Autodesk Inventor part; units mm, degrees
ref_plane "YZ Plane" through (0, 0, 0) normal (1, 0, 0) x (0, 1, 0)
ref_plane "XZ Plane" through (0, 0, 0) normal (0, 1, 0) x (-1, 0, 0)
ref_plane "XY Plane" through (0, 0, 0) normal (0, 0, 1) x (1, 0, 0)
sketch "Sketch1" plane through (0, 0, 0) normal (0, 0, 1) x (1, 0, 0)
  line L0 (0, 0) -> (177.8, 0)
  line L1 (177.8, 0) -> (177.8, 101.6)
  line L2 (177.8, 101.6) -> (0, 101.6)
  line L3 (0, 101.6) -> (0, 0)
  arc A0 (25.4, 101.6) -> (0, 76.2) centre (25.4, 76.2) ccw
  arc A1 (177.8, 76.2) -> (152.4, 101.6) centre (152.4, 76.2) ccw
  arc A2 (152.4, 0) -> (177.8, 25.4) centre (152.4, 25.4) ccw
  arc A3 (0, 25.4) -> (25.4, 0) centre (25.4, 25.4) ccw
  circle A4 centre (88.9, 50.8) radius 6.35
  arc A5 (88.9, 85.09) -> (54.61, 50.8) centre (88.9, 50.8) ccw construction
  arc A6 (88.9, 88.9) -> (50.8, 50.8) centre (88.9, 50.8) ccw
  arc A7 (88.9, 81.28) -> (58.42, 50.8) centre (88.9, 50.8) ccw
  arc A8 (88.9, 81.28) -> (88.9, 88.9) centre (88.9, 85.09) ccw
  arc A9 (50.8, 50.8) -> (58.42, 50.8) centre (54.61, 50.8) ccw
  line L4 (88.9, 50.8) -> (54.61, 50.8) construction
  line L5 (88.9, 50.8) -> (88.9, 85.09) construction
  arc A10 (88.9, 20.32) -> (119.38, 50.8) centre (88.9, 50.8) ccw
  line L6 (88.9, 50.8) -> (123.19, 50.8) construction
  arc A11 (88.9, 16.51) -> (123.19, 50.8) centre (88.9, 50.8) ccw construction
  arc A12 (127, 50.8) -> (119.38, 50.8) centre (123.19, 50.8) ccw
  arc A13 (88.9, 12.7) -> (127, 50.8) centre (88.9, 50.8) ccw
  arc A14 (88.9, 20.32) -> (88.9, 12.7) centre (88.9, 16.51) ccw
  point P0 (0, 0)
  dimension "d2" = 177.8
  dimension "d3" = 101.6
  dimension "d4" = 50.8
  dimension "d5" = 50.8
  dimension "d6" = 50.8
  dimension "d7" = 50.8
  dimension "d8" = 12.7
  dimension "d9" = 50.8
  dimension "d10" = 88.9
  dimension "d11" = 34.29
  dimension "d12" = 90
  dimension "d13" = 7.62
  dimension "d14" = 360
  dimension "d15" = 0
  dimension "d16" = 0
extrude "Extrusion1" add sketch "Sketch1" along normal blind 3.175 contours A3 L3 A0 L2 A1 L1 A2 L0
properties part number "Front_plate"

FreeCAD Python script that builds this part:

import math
import FreeCAD as App
import Part
import Sketcher

V = App.Vector
Q = App.Units.Quantity

doc = App.newDocument("Part")
body = doc.addObject("PartDesign::Body", "Body")

# Sketch on XY plane
sketch1 = doc.addObject("Sketcher::SketchObject", "Sketch")
body.addObject(sketch1)
sketch1.AttachmentSupport = (doc.XY_Plane, [""])
sketch1.MapMode = "FlatFace"
sketch1.addGeometry([
    Part.ArcOfCircle(Part.Circle(V(25.4, 25.4, 0), V(0, 0, 1), 25.4), math.radians(180), math.radians(270)),  # 0
    Part.LineSegment(V(25.4, 0, 0), V(152.4, 0, 0)),  # 1
    Part.ArcOfCircle(Part.Circle(V(152.4, 25.4, 0), V(0, 0, 1), 25.4), math.radians(-90), math.radians(0)),  # 2
    Part.LineSegment(V(177.8, 25.4, 0), V(177.8, 76.2, 0)),  # 3
    Part.ArcOfCircle(Part.Circle(V(152.4, 76.2, 0), V(0, 0, 1), 25.4), math.radians(0), math.radians(90)),  # 4
    Part.LineSegment(V(152.4, 101.6, 0), V(25.4, 101.6, 0)),  # 5
    Part.ArcOfCircle(Part.Circle(V(25.4, 76.2, 0), V(0, 0, 1), 25.4), math.radians(90), math.radians(180)),  # 6
    Part.LineSegment(V(0, 76.2, 0), V(0, 25.4, 0)),  # 7
    Part.ArcOfCircle(Part.Circle(V(88.9, 16.5, 0), V(0, 0, 1), 3.8), math.radians(90), math.radians(270)),  # 8
    Part.ArcOfCircle(Part.Circle(V(88.9, 50.8, 0), V(0, 0, 1), 30.5), math.radians(-90), math.radians(0)),  # 9
    Part.ArcOfCircle(Part.Circle(V(123.2, 50.8, 0), V(0, 0, 1), 3.8), math.radians(0), math.radians(180)),  # 10
    Part.ArcOfCircle(Part.Circle(V(88.9, 50.8, 0), V(0, 0, 1), 38.1), math.radians(-90), math.radians(0)),  # 11
    Part.Circle(V(88.9, 50.8, 0), V(0, 0, 1), 6.3),  # 12
    Part.ArcOfCircle(Part.Circle(V(88.9, 50.8, 0), V(0, 0, 1), 38.1), math.radians(90), math.radians(180)),  # 13
    Part.ArcOfCircle(Part.Circle(V(88.9, 85.1, 0), V(0, 0, 1), 3.8), math.radians(-90), math.radians(90)),  # 14
    Part.ArcOfCircle(Part.Circle(V(88.9, 50.8, 0), V(0, 0, 1), 30.5), math.radians(90), math.radians(180)),  # 15
    Part.ArcOfCircle(Part.Circle(V(54.6, 50.8, 0), V(0, 0, 1), 3.8), math.radians(180), math.radians(360)),  # 16
], False)
sketch1.addConstraint([
    Sketcher.Constraint("Tangent", 0, 2, 1, 1),
    Sketcher.Constraint("Tangent", 1, 2, 2, 1),
    Sketcher.Constraint("Tangent", 2, 2, 3, 1),
    Sketcher.Constraint("Tangent", 3, 2, 4, 1),
    Sketcher.Constraint("Tangent", 4, 2, 5, 1),
    Sketcher.Constraint("Tangent", 5, 2, 6, 1),
    Sketcher.Constraint("Tangent", 6, 2, 7, 1),
    Sketcher.Constraint("Tangent", 7, 2, 0, 1),
    Sketcher.Constraint("Tangent", 8, 1, 9, 1),
    Sketcher.Constraint("Tangent", 9, 2, 10, 2),
    Sketcher.Constraint("Tangent", 10, 1, 11, 2),
    Sketcher.Constraint("Tangent", 11, 1, 8, 2),
    Sketcher.Constraint("Tangent", 13, 1, 14, 2),
    Sketcher.Constraint("Tangent", 14, 1, 15, 1),
    Sketcher.Constraint("Tangent", 15, 2, 16, 2),
    Sketcher.Constraint("Tangent", 16, 1, 13, 2),
    Sketcher.Constraint("Horizontal", 1),
    Sketcher.Constraint("Vertical", 3),
    Sketcher.Constraint("Horizontal", 5),
    Sketcher.Constraint("Vertical", 7),
    Sketcher.Constraint("Coincident", 11, 3, 9, 3),
    Sketcher.Constraint("Coincident", 12, 3, 9, 3),
    Sketcher.Constraint("Coincident", 13, 3, 9, 3),
    Sketcher.Constraint("Coincident", 15, 3, 9, 3),
    Sketcher.Constraint("Equal", 0, 2),
    Sketcher.Constraint("Equal", 2, 4),
    Sketcher.Constraint("Equal", 4, 6),
    Sketcher.Constraint("Equal", 11, 13),
    Sketcher.Constraint("Equal", 10, 14),
    Sketcher.Constraint("PointOnObject", 0, 2, -1),
    Sketcher.Constraint("PointOnObject", 6, 2, -2),
    Sketcher.Constraint("Horizontal", 9, 3, 10, 3),
    Sketcher.Constraint("Horizontal", 15, 3, 16, 3),
    Sketcher.Constraint("Vertical", 8, 3, 9, 3),
    Sketcher.Constraint("Vertical", 13, 3, 14, 3),
    Sketcher.Constraint("Radius", 0, Q("1 in")),
    Sketcher.Constraint("Diameter", 12, Q("0.5 in")),
    Sketcher.Constraint("DistanceY", 3, 1, 3, 2, Q("2 in")),
    Sketcher.Constraint("Radius", 8, Q("0.15 in")),
    Sketcher.Constraint("DistanceY", -1, 1, 9, 3, Q("2 in")),
    Sketcher.Constraint("DistanceX", -1, 1, 2, 2, Q("7 in")),
    Sketcher.Constraint("DistanceX", -1, 1, 16, 1, Q("2 in")),
    Sketcher.Constraint("DistanceX", -1, 1, 8, 3, Q("3.5 in")),
])
pad1 = doc.addObject("PartDesign::Pad", "Pad")
body.addObject(pad1)
pad1.Profile = sketch1
pad1.Length = Q("0.125 in")

doc.recompute()
